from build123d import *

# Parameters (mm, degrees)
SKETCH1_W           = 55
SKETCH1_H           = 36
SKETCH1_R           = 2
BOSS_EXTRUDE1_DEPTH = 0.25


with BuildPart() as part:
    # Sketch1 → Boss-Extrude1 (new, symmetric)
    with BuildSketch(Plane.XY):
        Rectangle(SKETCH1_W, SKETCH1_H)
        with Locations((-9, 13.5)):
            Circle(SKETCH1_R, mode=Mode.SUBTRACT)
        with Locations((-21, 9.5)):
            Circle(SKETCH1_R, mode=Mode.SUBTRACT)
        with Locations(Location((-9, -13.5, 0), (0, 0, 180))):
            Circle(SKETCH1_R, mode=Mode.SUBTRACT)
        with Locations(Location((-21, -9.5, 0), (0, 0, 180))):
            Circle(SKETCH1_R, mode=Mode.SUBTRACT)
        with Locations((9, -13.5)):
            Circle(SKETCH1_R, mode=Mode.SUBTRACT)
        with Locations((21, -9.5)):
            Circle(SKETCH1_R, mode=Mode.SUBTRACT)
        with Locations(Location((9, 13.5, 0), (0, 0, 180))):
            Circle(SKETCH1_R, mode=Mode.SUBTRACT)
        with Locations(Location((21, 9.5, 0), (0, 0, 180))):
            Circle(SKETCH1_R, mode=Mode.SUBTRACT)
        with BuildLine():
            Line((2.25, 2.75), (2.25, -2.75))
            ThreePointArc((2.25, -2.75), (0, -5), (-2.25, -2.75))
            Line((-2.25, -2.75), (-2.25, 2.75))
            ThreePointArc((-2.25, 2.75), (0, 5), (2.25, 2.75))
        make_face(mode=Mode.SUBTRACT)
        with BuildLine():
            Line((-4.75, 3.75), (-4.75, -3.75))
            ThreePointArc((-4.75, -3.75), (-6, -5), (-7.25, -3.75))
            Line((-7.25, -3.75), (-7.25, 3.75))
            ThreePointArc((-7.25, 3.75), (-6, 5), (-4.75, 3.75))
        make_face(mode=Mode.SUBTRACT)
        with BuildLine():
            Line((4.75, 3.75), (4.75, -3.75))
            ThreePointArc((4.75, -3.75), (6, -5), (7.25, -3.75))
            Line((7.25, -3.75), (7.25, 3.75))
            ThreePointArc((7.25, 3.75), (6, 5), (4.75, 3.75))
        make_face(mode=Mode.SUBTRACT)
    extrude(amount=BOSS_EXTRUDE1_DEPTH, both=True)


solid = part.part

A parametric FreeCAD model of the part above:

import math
import FreeCAD as App
import Part
import Sketcher

V = App.Vector


def add_polygon(sketch, points):
    """Adds a closed chain of lines whose ends are joined by coincident constraints."""
    first, n = sketch.GeometryCount, len(points)
    for a, b in zip(points, points[1:] + points[:1]):
        sketch.addGeometry(Part.LineSegment(App.Vector(*a, 0), App.Vector(*b, 0)), False)
    for i in range(n):
        sketch.addConstraint(Sketcher.Constraint("Coincident", first + i, 2, first + (i + 1) % n, 1))

doc = App.newDocument("Part")
body = doc.addObject("PartDesign::Body", "Body")

# Sketch on XY plane
sketch1 = body.newObject("Sketcher::SketchObject", "Sketch")
sketch1.AttachmentSupport = (doc.getObject("XY_Plane"), [""])
sketch1.MapMode = "FlatFace"
add_polygon(sketch1, [(-27.5, 18), (-27.5, -18), (27.5, -18), (27.5, 18)])  # lines 0-3
sketch1.addGeometry(Part.Circle(V(-21, -9.5, 0), V(0, 0, 1), 2), False)  # 4
sketch1.addGeometry(Part.Circle(V(-9, -13.5, 0), V(0, 0, 1), 2), False)  # 5
sketch1.addGeometry(Part.Circle(V(9, -13.5, 0), V(0, 0, 1), 2), False)  # 6
sketch1.addGeometry(Part.Circle(V(21, -9.5, 0), V(0, 0, 1), 2), False)  # 7
sketch1.addGeometry(Part.ArcOfCircle(Part.Circle(V(-6, 3.8, 0), V(0, 0, 1), 1.2), math.radians(0), math.radians(180)), False)  # 8
sketch1.addGeometry(Part.LineSegment(V(-4.8, 3.8, 0), V(-4.8, -3.8, 0)), False)  # 9
sketch1.addGeometry(Part.ArcOfCircle(Part.Circle(V(-6, -3.8, 0), V(0, 0, 1), 1.2), math.radians(180), math.radians(360)), False)  # 10
sketch1.addGeometry(Part.LineSegment(V(-7.2, -3.8, 0), V(-7.2, 3.8, 0)), False)  # 11
sketch1.addGeometry(Part.Circle(V(-21, 9.5, 0), V(0, 0, 1), 2), False)  # 12
sketch1.addGeometry(Part.Circle(V(-9, 13.5, 0), V(0, 0, 1), 2), False)  # 13
sketch1.addGeometry(Part.ArcOfCircle(Part.Circle(V(0, 2.8, 0), V(0, 0, 1), 2.2), math.radians(0), math.radians(180)), False)  # 14
sketch1.addGeometry(Part.LineSegment(V(2.2, 2.8, 0), V(2.2, -2.8, 0)), False)  # 15
sketch1.addGeometry(Part.ArcOfCircle(Part.Circle(V(0, -2.8, 0), V(0, 0, 1), 2.2), math.radians(180), math.radians(360)), False)  # 16
sketch1.addGeometry(Part.LineSegment(V(-2.2, -2.8, 0), V(-2.2, 2.8, 0)), False)  # 17
sketch1.addGeometry(Part.LineSegment(V(4.8, -3.8, 0), V(4.8, 3.8, 0)), False)  # 18
sketch1.addGeometry(Part.ArcOfCircle(Part.Circle(V(6, 3.8, 0), V(0, 0, 1), 1.2), math.radians(0), math.radians(180)), False)  # 19
sketch1.addGeometry(Part.LineSegment(V(7.2, 3.8, 0), V(7.2, -3.8, 0)), False)  # 20
sketch1.addGeometry(Part.ArcOfCircle(Part.Circle(V(6, -3.8, 0), V(0, 0, 1), 1.2), math.radians(180), math.radians(360)), False)  # 21
sketch1.addGeometry(Part.Circle(V(9, 13.5, 0), V(0, 0, 1), 2), False)  # 22
sketch1.addGeometry(Part.Circle(V(21, 9.5, 0), V(0, 0, 1), 2), False)  # 23
sketch1.addConstraint(Sketcher.Constraint("Tangent", 8, 1, 9, 1))
sketch1.addConstraint(Sketcher.Constraint("Tangent", 9, 2, 10, 2))
sketch1.addConstraint(Sketcher.Constraint("Tangent", 10, 1, 11, 1))
sketch1.addConstraint(Sketcher.Constraint("Tangent", 11, 2, 8, 2))
sketch1.addConstraint(Sketcher.Constraint("Tangent", 14, 1, 15, 1))
sketch1.addConstraint(Sketcher.Constraint("Tangent", 15, 2, 16, 2))
sketch1.addConstraint(Sketcher.Constraint("Tangent", 16, 1, 17, 1))
sketch1.addConstraint(Sketcher.Constraint("Tangent", 17, 2, 14, 2))
sketch1.addConstraint(Sketcher.Constraint("Tangent", 18, 2, 19, 2))
sketch1.addConstraint(Sketcher.Constraint("Tangent", 19, 1, 20, 1))
sketch1.addConstraint(Sketcher.Constraint("Tangent", 20, 2, 21, 2))
sketch1.addConstraint(Sketcher.Constraint("Tangent", 21, 1, 18, 1))
sketch1.addConstraint(Sketcher.Constraint("Vertical", 0))
sketch1.addConstraint(Sketcher.Constraint("Horizontal", 1))
sketch1.addConstraint(Sketcher.Constraint("Vertical", 2))
sketch1.addConstraint(Sketcher.Constraint("Horizontal", 3))
sketch1.addConstraint(Sketcher.Constraint("Vertical", 9))
sketch1.addConstraint(Sketcher.Constraint("Vertical", 11))
sketch1.addConstraint(Sketcher.Constraint("Vertical", 15))
sketch1.addConstraint(Sketcher.Constraint("Vertical", 17))
sketch1.addConstraint(Sketcher.Constraint("Vertical", 18))
sketch1.addConstraint(Sketcher.Constraint("Vertical", 20))
sketch1.addConstraint(Sketcher.Constraint("Equal", 4, 5))
sketch1.addConstraint(Sketcher.Constraint("Equal", 5, 6))
sketch1.addConstraint(Sketcher.Constraint("Equal", 6, 7))
sketch1.addConstraint(Sketcher.Constraint("Equal", 7, 12))
sketch1.addConstraint(Sketcher.Constraint("Equal", 12, 13))
sketch1.addConstraint(Sketcher.Constraint("Equal", 10, 19))
sketch1.addConstraint(Sketcher.Constraint("Equal", 13, 22))
sketch1.addConstraint(Sketcher.Constraint("Equal", 22, 23))
sketch1.addConstraint(Sketcher.Constraint("Symmetric", 7, 3, 12, 3, -1, 1))
sketch1.addConstraint(Sketcher.Constraint("Symmetric", 6, 3, 13, 3, -1, 1))
sketch1.addConstraint(Sketcher.Constraint("Symmetric", 14, 3, 16, 3, -1, 1))
sketch1.addConstraint(Sketcher.Constraint("Symmetric", 10, 3, 19, 3, -1, 1))
sketch1.addConstraint(Sketcher.Constraint("Symmetric", 5, 3, 22, 3, -1, 1))
sketch1.addConstraint(Sketcher.Constraint("Symmetric", 4, 3, 23, 3, -1, 1))
sketch1.addConstraint(Sketcher.Constraint("Symmetric", 0, 2, 2, 2, -1, 1))
sketch1.addConstraint(Sketcher.Constraint("Symmetric", 5, 3, 6, 3, -2))
sketch1.addConstraint(Sketcher.Constraint("Symmetric", 4, 3, 7, 3, -2))
sketch1.addConstraint(Sketcher.Constraint("Horizontal", 8, 3, 19, 3))
sketch1.addConstraint(Sketcher.Constraint("Horizontal", 10, 3, 21, 3))
sketch1.addConstraint(Sketcher.Constraint("Diameter", 4, 4.0))
sketch1.addConstraint(Sketcher.Constraint("DistanceX", 1, 1, 1, 2, 55.0))
sketch1.addConstraint(Sketcher.Constraint("DistanceY", 0, 2, 0, 1, 36.0))
sketch1.addConstraint(Sketcher.Constraint("Radius", 8, 1.25))
sketch1.addConstraint(Sketcher.Constraint("Radius", 14, 2.25))
sketch1.addConstraint(Sketcher.Constraint("DistanceY", 9, 2, 9, 1, 7.5))
sketch1.addConstraint(Sketcher.Constraint("DistanceY", 15, 2, 15, 1, 5.5))
sketch1.addConstraint(Sketcher.Constraint("DistanceX", 4, 3, -1, 1, 21.0))
sketch1.addConstraint(Sketcher.Constraint("DistanceX", 5, 3, -1, 1, 9.0))
sketch1.addConstraint(Sketcher.Constraint("DistanceX", 8, 3, -1, 1, 6.0))
sketch1.addConstraint(Sketcher.Constraint("DistanceY", 5, 3, 4, 3, 4.0))
sketch1.addConstraint(Sketcher.Constraint("DistanceY", 4, 3, 12, 3, 19.0))
pad1 = body.newObject("PartDesign::Pad", "Pad")
pad1.Profile = sketch1
pad1.Length = 0.5
pad1.Midplane = True

doc.recompute()
